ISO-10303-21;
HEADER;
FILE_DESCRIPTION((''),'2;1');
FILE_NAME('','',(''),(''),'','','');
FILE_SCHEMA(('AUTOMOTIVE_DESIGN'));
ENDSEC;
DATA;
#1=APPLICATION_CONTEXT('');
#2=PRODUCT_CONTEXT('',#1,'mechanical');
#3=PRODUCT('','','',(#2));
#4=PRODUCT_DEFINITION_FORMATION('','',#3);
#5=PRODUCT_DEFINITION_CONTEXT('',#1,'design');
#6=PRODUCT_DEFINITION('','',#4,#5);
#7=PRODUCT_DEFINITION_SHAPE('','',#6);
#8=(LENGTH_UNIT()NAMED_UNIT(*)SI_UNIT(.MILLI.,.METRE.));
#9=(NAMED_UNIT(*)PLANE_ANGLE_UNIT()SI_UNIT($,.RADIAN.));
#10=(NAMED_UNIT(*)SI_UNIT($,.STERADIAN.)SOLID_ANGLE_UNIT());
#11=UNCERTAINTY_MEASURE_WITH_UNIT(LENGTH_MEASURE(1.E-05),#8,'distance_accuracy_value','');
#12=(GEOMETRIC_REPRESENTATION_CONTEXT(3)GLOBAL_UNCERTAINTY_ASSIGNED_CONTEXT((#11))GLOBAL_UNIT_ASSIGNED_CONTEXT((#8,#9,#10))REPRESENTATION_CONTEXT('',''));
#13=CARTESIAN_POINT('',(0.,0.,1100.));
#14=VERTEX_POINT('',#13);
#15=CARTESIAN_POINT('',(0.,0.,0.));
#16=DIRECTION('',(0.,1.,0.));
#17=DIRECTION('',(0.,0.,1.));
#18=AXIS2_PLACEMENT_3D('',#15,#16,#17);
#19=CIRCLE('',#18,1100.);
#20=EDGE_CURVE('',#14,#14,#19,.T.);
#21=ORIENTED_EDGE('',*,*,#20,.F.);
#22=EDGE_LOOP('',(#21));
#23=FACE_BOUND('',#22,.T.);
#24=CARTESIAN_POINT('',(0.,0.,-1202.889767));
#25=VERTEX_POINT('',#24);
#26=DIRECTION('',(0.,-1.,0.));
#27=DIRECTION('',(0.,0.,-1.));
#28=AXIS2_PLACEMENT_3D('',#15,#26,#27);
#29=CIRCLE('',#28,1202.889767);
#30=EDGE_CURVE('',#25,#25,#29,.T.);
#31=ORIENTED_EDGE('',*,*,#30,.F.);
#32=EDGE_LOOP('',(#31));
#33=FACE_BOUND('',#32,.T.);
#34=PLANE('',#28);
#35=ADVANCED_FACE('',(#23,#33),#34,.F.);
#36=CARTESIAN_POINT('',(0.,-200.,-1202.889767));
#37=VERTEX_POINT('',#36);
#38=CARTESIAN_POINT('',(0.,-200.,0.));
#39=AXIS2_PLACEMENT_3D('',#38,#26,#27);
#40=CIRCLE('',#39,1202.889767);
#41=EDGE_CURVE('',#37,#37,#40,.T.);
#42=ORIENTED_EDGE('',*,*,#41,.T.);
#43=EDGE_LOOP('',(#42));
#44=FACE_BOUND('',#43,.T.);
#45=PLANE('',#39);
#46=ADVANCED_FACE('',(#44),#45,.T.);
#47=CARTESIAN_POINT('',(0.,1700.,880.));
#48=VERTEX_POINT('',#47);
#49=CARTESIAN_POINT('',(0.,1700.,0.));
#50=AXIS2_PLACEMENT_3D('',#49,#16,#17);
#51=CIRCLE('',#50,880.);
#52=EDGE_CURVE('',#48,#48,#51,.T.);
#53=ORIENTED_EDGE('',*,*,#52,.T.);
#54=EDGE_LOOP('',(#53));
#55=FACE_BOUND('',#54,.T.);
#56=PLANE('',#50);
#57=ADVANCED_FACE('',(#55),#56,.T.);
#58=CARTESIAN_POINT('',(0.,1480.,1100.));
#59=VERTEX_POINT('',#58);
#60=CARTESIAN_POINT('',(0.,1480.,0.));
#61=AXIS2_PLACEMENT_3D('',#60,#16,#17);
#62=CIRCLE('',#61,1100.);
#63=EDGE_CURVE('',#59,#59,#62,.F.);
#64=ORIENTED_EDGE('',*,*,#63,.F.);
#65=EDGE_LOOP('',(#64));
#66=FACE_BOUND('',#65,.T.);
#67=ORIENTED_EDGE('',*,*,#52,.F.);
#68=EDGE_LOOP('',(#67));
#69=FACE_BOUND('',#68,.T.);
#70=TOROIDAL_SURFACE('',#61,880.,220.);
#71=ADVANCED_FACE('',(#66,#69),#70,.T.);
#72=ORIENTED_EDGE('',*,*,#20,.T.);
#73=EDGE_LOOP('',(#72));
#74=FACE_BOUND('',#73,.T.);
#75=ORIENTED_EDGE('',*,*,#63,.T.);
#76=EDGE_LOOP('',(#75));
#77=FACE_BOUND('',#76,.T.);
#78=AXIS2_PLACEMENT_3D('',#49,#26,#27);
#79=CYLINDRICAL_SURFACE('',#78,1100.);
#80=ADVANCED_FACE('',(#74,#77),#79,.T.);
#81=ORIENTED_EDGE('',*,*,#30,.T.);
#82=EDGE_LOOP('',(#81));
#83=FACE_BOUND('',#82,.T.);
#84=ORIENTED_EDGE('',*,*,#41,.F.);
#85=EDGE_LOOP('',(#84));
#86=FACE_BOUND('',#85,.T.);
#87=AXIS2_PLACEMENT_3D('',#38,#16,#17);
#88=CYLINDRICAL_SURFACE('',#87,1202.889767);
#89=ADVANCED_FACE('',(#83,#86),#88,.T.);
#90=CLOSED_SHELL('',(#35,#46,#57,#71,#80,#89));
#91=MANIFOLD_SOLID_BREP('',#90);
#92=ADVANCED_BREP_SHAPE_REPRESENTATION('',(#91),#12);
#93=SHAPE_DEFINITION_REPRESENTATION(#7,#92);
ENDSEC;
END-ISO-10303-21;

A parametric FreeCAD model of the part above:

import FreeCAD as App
import Part
import Sketcher
from FreeCAD import Vector


def edges_at(feature, points):
    """Names of the edges that pass closest to the given points."""
    edges = feature.Shape.Edges
    near = lambda p: min(range(len(edges)), key=lambda i: edges[i].distToShape(Part.Vertex(*p))[0])
    return sorted({f"Edge{near(p) + 1}" for p in points})

doc = App.newDocument("Part")
body = doc.addObject("PartDesign::Body", "Body")

# Sketch on XZ plane
sketch1 = doc.addObject("Sketcher::SketchObject", "Sketch")
body.addObject(sketch1)
sketch1.AttachmentSupport = (doc.XZ_Plane, [""])
sketch1.MapMode = "FlatFace"
sketch1.addGeometry(Part.Circle(Vector(0, 0, 0), Vector(0, 0, 1), 1100), False)
sketch1.addConstraint([
    Sketcher.Constraint("Coincident", 0, 3, -1, 1),
    Sketcher.Constraint("Diameter", 0, 2200.0),
])
pad1 = doc.addObject("PartDesign::Pad", "Pad")
body.addObject(pad1)
pad1.Profile = sketch1
pad1.Length = 1700
pad1.Reversed = True
doc.recompute()

fillet = doc.addObject("PartDesign::Fillet", "Fillet")
body.addObject(fillet)
fillet.Base = (pad1, edges_at(pad1, [(-1100, 1700, 0)]))
fillet.Radius = 220

# Sketch on XZ plane
sketch2 = doc.addObject("Sketcher::SketchObject", "Sketch001")
body.addObject(sketch2)
sketch2.AttachmentSupport = (doc.XZ_Plane, [""])
sketch2.MapMode = "FlatFace"
sketch2.addGeometry(Part.Circle(Vector(0, 0, 0), Vector(0, 0, 1), 1203), False)
sketch2.addConstraint([
    Sketcher.Constraint("Coincident", 0, 3, -1, 1),
    Sketcher.Constraint("Diameter", 0, 2405.779533),
])
pad2 = doc.addObject("PartDesign::Pad", "Pad001")
body.addObject(pad2)
pad2.Profile = sketch2
pad2.Length = 200

doc.recompute()
